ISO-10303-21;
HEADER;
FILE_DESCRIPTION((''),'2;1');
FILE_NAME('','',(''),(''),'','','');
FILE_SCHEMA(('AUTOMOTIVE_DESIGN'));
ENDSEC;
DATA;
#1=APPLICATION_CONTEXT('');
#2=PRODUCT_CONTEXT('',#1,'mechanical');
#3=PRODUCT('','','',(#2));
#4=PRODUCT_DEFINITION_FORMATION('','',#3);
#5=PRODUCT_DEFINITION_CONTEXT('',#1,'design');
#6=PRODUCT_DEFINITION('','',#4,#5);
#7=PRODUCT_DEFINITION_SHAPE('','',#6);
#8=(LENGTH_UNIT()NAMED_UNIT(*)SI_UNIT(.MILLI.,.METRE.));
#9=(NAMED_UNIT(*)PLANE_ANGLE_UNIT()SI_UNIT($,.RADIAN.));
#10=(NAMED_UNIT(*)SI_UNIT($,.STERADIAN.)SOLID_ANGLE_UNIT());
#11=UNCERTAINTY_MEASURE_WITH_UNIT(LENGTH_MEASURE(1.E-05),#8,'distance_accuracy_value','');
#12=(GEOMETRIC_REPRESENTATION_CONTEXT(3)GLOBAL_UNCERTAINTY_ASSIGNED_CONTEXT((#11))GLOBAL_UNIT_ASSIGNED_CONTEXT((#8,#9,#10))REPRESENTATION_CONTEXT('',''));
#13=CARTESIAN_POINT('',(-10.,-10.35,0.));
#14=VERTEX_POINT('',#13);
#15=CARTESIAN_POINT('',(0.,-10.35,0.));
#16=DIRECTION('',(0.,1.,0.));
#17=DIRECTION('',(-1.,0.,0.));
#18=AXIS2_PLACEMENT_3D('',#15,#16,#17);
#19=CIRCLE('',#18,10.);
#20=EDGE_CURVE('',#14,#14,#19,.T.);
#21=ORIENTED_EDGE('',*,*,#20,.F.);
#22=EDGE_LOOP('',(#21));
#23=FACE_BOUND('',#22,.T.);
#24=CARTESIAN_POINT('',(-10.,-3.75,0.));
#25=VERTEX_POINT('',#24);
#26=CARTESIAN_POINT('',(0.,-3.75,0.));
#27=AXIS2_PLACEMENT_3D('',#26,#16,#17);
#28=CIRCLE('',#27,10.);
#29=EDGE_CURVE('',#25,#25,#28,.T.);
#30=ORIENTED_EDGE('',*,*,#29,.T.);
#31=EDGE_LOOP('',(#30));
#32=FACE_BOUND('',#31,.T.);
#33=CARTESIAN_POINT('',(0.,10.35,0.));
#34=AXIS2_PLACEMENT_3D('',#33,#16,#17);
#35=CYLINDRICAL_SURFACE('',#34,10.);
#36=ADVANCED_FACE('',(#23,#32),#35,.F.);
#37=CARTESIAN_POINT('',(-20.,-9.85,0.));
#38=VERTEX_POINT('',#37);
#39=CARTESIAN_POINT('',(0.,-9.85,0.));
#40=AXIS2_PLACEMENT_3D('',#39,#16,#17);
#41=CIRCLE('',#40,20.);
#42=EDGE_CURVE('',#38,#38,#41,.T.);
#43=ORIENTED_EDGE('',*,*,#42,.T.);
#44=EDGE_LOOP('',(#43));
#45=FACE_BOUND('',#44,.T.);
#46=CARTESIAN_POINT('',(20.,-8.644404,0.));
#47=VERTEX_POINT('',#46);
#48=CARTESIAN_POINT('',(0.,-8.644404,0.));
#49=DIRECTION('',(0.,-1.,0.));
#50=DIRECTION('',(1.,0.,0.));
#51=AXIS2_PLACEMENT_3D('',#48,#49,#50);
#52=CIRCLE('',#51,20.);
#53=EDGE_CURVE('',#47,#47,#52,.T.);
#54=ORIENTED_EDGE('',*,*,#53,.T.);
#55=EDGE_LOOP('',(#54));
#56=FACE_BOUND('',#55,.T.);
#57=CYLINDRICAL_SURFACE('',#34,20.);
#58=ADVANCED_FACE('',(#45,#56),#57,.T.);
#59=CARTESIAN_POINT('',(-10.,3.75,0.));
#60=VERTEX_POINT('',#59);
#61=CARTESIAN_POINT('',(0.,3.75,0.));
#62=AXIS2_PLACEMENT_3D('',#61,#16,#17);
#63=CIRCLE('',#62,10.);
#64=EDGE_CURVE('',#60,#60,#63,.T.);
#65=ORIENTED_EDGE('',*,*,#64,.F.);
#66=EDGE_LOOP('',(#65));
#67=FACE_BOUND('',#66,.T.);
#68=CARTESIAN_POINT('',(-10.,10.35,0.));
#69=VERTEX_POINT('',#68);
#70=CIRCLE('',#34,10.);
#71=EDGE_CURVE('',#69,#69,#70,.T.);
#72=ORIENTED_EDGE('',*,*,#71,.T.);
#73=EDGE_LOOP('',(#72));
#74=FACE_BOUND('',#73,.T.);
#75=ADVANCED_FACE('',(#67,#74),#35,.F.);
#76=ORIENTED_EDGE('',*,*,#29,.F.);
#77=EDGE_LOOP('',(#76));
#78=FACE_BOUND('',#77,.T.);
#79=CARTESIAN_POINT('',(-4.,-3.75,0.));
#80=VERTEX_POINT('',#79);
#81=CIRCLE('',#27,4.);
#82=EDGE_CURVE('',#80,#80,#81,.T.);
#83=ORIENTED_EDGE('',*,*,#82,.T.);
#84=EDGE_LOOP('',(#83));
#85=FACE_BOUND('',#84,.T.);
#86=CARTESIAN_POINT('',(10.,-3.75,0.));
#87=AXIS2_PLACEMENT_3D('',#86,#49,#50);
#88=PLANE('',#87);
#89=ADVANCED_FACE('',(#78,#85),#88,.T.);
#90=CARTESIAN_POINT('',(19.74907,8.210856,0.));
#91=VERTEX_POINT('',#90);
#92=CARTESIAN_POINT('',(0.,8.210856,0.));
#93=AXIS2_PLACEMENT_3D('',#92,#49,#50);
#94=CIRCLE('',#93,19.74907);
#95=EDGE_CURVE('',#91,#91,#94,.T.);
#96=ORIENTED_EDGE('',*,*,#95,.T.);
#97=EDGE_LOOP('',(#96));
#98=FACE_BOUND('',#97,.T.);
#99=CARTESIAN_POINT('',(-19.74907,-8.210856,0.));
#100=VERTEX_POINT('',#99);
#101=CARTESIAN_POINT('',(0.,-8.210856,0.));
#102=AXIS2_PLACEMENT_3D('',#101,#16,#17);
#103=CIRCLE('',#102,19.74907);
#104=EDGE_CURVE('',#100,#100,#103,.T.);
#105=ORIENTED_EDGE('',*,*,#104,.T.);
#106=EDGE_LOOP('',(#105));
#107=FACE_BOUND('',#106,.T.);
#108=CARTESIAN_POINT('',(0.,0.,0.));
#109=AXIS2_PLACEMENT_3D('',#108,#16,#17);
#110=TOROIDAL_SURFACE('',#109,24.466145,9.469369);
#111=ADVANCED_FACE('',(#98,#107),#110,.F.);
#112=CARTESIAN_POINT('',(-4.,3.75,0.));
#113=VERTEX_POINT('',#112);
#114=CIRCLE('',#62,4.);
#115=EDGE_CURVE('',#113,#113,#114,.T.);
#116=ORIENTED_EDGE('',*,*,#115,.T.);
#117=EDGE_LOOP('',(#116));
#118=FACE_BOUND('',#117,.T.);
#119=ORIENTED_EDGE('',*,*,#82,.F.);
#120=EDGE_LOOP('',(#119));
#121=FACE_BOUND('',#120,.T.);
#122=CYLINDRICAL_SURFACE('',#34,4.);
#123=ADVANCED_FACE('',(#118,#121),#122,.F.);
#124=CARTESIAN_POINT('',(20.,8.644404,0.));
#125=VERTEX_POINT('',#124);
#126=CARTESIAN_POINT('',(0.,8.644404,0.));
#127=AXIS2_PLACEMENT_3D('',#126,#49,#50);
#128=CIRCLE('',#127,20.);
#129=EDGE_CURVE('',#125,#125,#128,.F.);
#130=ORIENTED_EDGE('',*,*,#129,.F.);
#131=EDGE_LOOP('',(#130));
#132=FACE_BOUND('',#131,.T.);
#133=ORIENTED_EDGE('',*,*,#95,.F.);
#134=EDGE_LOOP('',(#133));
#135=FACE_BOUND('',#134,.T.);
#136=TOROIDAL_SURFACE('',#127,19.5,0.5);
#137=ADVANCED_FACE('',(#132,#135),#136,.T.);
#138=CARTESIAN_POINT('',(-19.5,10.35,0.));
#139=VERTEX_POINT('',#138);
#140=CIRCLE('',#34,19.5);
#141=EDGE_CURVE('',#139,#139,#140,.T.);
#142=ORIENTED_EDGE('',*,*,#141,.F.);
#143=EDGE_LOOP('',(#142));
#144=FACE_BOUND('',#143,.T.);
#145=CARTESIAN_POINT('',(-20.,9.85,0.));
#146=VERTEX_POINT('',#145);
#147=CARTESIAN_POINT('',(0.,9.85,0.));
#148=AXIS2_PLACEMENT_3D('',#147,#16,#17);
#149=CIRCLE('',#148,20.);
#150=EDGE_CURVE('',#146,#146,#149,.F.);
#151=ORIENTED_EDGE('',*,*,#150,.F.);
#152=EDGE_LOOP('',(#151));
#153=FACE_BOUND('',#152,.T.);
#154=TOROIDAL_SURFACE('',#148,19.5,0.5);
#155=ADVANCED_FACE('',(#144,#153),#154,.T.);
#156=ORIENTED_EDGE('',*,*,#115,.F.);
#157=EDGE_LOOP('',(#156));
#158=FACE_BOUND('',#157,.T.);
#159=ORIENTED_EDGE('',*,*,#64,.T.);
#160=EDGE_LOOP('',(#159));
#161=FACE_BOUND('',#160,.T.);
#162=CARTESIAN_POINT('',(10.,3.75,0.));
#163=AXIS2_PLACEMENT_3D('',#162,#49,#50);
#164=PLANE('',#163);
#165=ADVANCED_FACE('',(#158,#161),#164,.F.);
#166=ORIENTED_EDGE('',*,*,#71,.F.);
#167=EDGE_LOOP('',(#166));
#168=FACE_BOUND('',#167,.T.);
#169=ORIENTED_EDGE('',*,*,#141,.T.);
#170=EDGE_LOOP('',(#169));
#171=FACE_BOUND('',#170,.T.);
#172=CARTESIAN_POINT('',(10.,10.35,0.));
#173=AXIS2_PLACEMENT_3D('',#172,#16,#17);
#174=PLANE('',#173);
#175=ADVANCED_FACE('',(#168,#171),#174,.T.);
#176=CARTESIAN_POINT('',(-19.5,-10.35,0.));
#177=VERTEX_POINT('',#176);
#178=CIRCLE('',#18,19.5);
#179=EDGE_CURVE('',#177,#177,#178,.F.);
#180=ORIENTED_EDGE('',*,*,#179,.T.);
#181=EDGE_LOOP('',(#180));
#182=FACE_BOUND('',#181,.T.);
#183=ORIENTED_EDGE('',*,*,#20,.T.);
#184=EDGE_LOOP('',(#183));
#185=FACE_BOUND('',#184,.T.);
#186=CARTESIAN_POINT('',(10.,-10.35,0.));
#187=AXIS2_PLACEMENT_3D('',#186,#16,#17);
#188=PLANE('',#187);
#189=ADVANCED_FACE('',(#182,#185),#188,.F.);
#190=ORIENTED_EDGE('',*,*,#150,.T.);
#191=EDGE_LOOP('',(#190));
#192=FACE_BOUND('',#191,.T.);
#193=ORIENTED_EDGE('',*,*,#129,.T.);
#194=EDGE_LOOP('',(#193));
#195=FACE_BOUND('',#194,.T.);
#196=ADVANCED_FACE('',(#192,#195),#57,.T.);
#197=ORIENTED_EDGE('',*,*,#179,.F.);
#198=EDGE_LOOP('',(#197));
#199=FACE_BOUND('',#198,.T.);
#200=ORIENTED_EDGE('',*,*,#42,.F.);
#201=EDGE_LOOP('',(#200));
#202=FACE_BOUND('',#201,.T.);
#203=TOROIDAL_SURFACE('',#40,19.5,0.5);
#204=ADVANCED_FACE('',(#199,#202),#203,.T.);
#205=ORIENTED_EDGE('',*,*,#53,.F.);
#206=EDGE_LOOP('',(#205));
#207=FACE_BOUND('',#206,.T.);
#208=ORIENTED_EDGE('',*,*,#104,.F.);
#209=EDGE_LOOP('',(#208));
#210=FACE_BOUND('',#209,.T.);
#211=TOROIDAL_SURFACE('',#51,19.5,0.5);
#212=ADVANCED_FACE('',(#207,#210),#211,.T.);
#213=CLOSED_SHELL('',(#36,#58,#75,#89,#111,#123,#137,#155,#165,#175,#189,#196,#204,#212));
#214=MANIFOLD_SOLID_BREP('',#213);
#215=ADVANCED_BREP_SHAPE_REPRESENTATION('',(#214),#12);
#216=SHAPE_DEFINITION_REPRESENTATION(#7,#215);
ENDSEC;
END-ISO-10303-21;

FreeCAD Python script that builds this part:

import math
import FreeCAD as App
import Part
import Sketcher
from FreeCAD import Vector
Q = App.Units.Quantity


def edges_at(feature, points):
    """Names of the edges that pass closest to the given points."""
    edges = feature.Shape.Edges
    near = lambda p: min(range(len(edges)), key=lambda i: edges[i].distToShape(Part.Vertex(*p))[0])
    return sorted({f"Edge{near(p) + 1}" for p in points})

doc = App.newDocument("Part")
body = doc.addObject("PartDesign::Body", "Body")

sketch1 = body.newObject("Sketcher::SketchObject", "Sketch")
sketch1.AttachmentSupport = (doc.getObject("XY_Plane"), [""])
sketch1.MapMode = "FlatFace"
sketch1.addGeometry(Part.LineSegment(Vector(20, 8.3, 0), Vector(20, 10.3, 0)), False)
sketch1.addGeometry(Part.LineSegment(Vector(20, 10.3, 0), Vector(10, 10.3, 0)), False)
sketch1.addGeometry(Part.LineSegment(Vector(10, 10.3, 0), Vector(10, 3.8, 0)), False)
sketch1.addGeometry(Part.LineSegment(Vector(10, 3.8, 0), Vector(4, 3.8, 0)), False)
sketch1.addGeometry(Part.LineSegment(Vector(4, 3.8, 0), Vector(4, -3.8, 0)), False)
sketch1.addGeometry(Part.LineSegment(Vector(4, -3.8, 0), Vector(10, -3.8, 0)), False)
sketch1.addGeometry(Part.LineSegment(Vector(10, -3.8, 0), Vector(10, -10.3, 0)), False)
sketch1.addGeometry(Part.LineSegment(Vector(10, -10.3, 0), Vector(20, -10.3, 0)), False)
sketch1.addGeometry(Part.LineSegment(Vector(20, -10.3, 0), Vector(20, -8.3, 0)), False)
sketch1.addGeometry(Part.ArcOfCircle(Part.Circle(Vector(24.5, 0, 0), Vector(0, 0, 1), 9.5), math.radians(118), math.radians(242)), False)
sketch1.addConstraint(Sketcher.Constraint("Coincident", 0, 2, 1, 1))
sketch1.addConstraint(Sketcher.Constraint("Coincident", 1, 2, 2, 1))
sketch1.addConstraint(Sketcher.Constraint("Coincident", 2, 2, 3, 1))
sketch1.addConstraint(Sketcher.Constraint("Coincident", 3, 2, 4, 1))
sketch1.addConstraint(Sketcher.Constraint("Coincident", 4, 2, 5, 1))
sketch1.addConstraint(Sketcher.Constraint("Coincident", 5, 2, 6, 1))
sketch1.addConstraint(Sketcher.Constraint("Coincident", 6, 2, 7, 1))
sketch1.addConstraint(Sketcher.Constraint("Coincident", 7, 2, 8, 1))
sketch1.addConstraint(Sketcher.Constraint("Coincident", 8, 2, 9, 2))
sketch1.addConstraint(Sketcher.Constraint("Coincident", 9, 1, 0, 1))
sketch1.addConstraint(Sketcher.Constraint("Vertical", 0))
sketch1.addConstraint(Sketcher.Constraint("Horizontal", 1))
sketch1.addConstraint(Sketcher.Constraint("Vertical", 2))
sketch1.addConstraint(Sketcher.Constraint("Horizontal", 3))
sketch1.addConstraint(Sketcher.Constraint("Vertical", 4))
sketch1.addConstraint(Sketcher.Constraint("Horizontal", 5))
sketch1.addConstraint(Sketcher.Constraint("Vertical", 6))
sketch1.addConstraint(Sketcher.Constraint("Horizontal", 7))
sketch1.addConstraint(Sketcher.Constraint("Vertical", 8))
sketch1.addConstraint(Sketcher.Constraint("Symmetric", 2, 2, 5, 2, -1))
sketch1.addConstraint(Sketcher.Constraint("Symmetric", 0, 2, 7, 2, -1))
sketch1.addConstraint(Sketcher.Constraint("PointOnObject", 9, 3, -1))
sketch1.addConstraint(Sketcher.Constraint("DistanceX", 1, 2, 1, 1, Q("10 mm")))
sketch1.addConstraint(Sketcher.Constraint("DistanceX", 3, 2, 3, 1, Q("6 mm")))
sketch1.addConstraint(Sketcher.Constraint("DistanceY", 0, 1, 0, 2, Q("2 mm")))
sketch1.addConstraint(Sketcher.Constraint("DistanceY", 2, 2, 2, 1, Q("6.6 mm")))
sketch1.addConstraint(Sketcher.Constraint("DistanceY", 4, 2, 4, 1, Q("7.5 mm")))
sketch1.addConstraint(Sketcher.Constraint("DistanceX", -1, 1, 0, 2, Q("20 mm")))
sketch1.addConstraint(Sketcher.Constraint("Radius", 9, Q("9.469369 mm")))
revolution = body.newObject("PartDesign::Revolution", "Revolution")
revolution.Profile = sketch1
revolution.ReferenceAxis = (sketch1, ["V_Axis"])
revolution.Angle = 360
doc.recompute()

fillet = body.newObject("PartDesign::Fillet", "Fillet")
fillet.Base = (revolution, edges_at(revolution, [
    (20, 10.35, 0),
    (20, 8.35, 0),
    (20, -8.35, 0),
    (20, -10.35, 0),
]))
fillet.Radius = 0.5

doc.recompute()
